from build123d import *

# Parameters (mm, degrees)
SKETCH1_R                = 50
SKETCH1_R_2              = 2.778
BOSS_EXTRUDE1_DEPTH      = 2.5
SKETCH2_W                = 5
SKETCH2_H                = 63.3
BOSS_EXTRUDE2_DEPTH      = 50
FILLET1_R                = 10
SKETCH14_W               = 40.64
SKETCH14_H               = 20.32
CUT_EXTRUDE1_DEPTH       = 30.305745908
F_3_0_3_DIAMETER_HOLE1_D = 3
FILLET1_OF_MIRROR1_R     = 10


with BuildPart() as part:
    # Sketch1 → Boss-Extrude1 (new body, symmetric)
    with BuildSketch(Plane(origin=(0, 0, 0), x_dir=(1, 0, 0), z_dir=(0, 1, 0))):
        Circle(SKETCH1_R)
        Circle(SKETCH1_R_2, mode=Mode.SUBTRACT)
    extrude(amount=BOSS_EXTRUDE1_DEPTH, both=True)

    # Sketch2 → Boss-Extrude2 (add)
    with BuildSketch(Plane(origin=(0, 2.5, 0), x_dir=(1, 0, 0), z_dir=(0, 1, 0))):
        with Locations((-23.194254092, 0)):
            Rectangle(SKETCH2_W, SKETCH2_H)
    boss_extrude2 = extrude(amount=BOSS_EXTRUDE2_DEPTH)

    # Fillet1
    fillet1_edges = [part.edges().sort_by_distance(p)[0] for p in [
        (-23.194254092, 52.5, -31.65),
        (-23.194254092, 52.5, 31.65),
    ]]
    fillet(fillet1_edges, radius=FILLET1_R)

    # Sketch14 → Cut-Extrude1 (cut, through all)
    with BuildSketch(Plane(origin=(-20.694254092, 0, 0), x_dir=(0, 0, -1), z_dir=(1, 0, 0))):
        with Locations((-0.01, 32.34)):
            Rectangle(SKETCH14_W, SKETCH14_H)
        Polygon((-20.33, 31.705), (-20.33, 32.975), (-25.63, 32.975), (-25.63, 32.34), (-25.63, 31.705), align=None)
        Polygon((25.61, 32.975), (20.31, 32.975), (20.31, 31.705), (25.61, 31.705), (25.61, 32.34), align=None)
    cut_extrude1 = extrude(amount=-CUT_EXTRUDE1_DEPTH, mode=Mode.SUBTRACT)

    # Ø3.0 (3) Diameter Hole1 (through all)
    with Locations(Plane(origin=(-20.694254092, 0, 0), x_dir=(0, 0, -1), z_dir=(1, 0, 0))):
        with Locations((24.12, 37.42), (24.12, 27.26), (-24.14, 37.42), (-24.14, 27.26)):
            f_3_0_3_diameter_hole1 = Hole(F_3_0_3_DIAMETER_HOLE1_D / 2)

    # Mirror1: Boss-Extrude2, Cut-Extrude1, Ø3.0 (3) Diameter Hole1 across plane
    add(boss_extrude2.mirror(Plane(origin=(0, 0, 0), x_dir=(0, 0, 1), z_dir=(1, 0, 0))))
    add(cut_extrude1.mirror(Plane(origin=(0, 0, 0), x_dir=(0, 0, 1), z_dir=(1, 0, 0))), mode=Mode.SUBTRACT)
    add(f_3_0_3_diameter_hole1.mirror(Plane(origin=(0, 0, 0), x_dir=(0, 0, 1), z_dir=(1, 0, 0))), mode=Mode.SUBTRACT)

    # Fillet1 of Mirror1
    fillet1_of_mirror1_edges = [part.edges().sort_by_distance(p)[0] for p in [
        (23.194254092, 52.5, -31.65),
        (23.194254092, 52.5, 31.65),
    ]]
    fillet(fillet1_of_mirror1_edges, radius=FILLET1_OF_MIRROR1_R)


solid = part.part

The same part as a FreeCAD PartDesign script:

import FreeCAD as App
import Part
import Sketcher

V = App.Vector
Q = App.Units.Quantity


def edges_at(feature, points):
    """Names of the edges that pass closest to the given points."""
    edges = feature.Shape.Edges
    near = lambda p: min(range(len(edges)), key=lambda i: edges[i].distToShape(Part.Vertex(*p))[0])
    return sorted({f"Edge{near(p) + 1}" for p in points})

doc = App.newDocument("Part")
body = doc.addObject("PartDesign::Body", "Body")

# Sketch on XZ plane
sketch1 = body.newObject("Sketcher::SketchObject", "Sketch")
sketch1.AttachmentSupport = (doc.getObject("XZ_Plane"), [""])
sketch1.MapMode = "FlatFace"
sketch1.addGeometry(Part.Circle(V(0, 0, 0), V(0, 0, 1), 50), False)
sketch1.addGeometry(Part.Circle(V(0, 0, 0), V(0, 0, 1), 2.8), False)
sketch1.addConstraint(Sketcher.Constraint("Coincident", 0, 3, -1, 1))
sketch1.addConstraint(Sketcher.Constraint("Coincident", 1, 3, -1, 1))
sketch1.addConstraint(Sketcher.Constraint("Diameter", 0, Q("100 mm")))
sketch1.addConstraint(Sketcher.Constraint("Diameter", 1, Q("5.556 mm")))
pad1 = body.newObject("PartDesign::Pad", "Pad")
pad1.Profile = sketch1
pad1.Length = 5
pad1.Midplane = True

# Sketch on XZ plane
sketch2 = body.newObject("Sketcher::SketchObject", "Sketch001")
sketch2.AttachmentSupport = (doc.getObject("XZ_Plane"), [""])
sketch2.MapMode = "FlatFace"
sketch2.AttachmentOffset = App.Placement(V(0, 0, -2.5), App.Rotation())
sketch2.addGeometry(Part.LineSegment(V(-26, -32, 0), V(-26, 32, 0)), False)
sketch2.addGeometry(Part.LineSegment(V(-26, 32, 0), V(-21, 32, 0)), False)
sketch2.addGeometry(Part.LineSegment(V(-21, 32, 0), V(-21, -32, 0)), False)
sketch2.addGeometry(Part.LineSegment(V(-21, -32, 0), V(-26, -32, 0)), False)
sketch2.addConstraint(Sketcher.Constraint("Coincident", 0, 2, 1, 1))
sketch2.addConstraint(Sketcher.Constraint("Coincident", 1, 2, 2, 1))
sketch2.addConstraint(Sketcher.Constraint("Coincident", 2, 2, 3, 1))
sketch2.addConstraint(Sketcher.Constraint("Coincident", 3, 2, 0, 1))
sketch2.addConstraint(Sketcher.Constraint("Vertical", 0))
sketch2.addConstraint(Sketcher.Constraint("Horizontal", 1))
sketch2.addConstraint(Sketcher.Constraint("Vertical", 2))
sketch2.addConstraint(Sketcher.Constraint("Horizontal", 3))
sketch2.addConstraint(Sketcher.Constraint("DistanceX", 1, 1, 1, 2, Q("5 mm")))
sketch2.addConstraint(Sketcher.Constraint("DistanceY", 0, 1, 0, 2, Q("63.3 mm")))
sketch2.addConstraint(Sketcher.Constraint("DistanceY", -1, 1, 0, 2, Q("31.65 mm")))
sketch2.addConstraint(Sketcher.Constraint("DistanceX", 0, 2, -1, 1, Q("25.694254 mm")))
pad2 = body.newObject("PartDesign::Pad", "Pad001")
pad2.Profile = sketch2
pad2.Length = 50
pad2.Reversed = True
doc.recompute()

fillet = body.newObject("PartDesign::Fillet", "Fillet")
fillet.Base = (pad2, edges_at(pad2, [(-23.194, 52.5, -31.65), (-23.194, 52.5, 31.65)]))
fillet.Radius = 10

# Sketch on YZ plane
sketch3 = body.newObject("Sketcher::SketchObject", "Sketch002")
sketch3.AttachmentSupport = (doc.getObject("YZ_Plane"), [""])
sketch3.MapMode = "FlatFace"
sketch3.AttachmentOffset = App.Placement(V(0, 0, -20.694254), App.Rotation())
sketch3.addGeometry(Part.LineSegment(V(31.7, 20.3, 0), V(22.2, 20.3, 0)), False)
sketch3.addGeometry(Part.LineSegment(V(22.2, 20.3, 0), V(22.2, -20.3, 0)), False)
sketch3.addGeometry(Part.LineSegment(V(22.2, -20.3, 0), V(31.7, -20.3, 0)), False)
sketch3.addGeometry(Part.LineSegment(V(31.7, -20.3, 0), V(31.7, -25.6, 0)), False)
sketch3.addGeometry(Part.LineSegment(V(31.7, -25.6, 0), V(33, -25.6, 0)), False)
sketch3.addGeometry(Part.LineSegment(V(33, -25.6, 0), V(33, -20.3, 0)), False)
sketch3.addGeometry(Part.LineSegment(V(33, -20.3, 0), V(42.5, -20.3, 0)), False)
sketch3.addGeometry(Part.LineSegment(V(42.5, -20.3, 0), V(42.5, 20.3, 0)), False)
sketch3.addGeometry(Part.LineSegment(V(42.5, 20.3, 0), V(33, 20.3, 0)), False)
sketch3.addGeometry(Part.LineSegment(V(33, 20.3, 0), V(33, 25.6, 0)), False)
sketch3.addGeometry(Part.LineSegment(V(33, 25.6, 0), V(31.7, 25.6, 0)), False)
sketch3.addGeometry(Part.LineSegment(V(31.7, 25.6, 0), V(31.7, 20.3, 0)), False)
sketch3.addConstraint(Sketcher.Constraint("Coincident", 0, 2, 1, 1))
sketch3.addConstraint(Sketcher.Constraint("Coincident", 1, 2, 2, 1))
sketch3.addConstraint(Sketcher.Constraint("Coincident", 2, 2, 3, 1))
sketch3.addConstraint(Sketcher.Constraint("Coincident", 3, 2, 4, 1))
sketch3.addConstraint(Sketcher.Constraint("Coincident", 4, 2, 5, 1))
sketch3.addConstraint(Sketcher.Constraint("Coincident", 5, 2, 6, 1))
sketch3.addConstraint(Sketcher.Constraint("Coincident", 6, 2, 7, 1))
sketch3.addConstraint(Sketcher.Constraint("Coincident", 7, 2, 8, 1))
sketch3.addConstraint(Sketcher.Constraint("Coincident", 8, 2, 9, 1))
sketch3.addConstraint(Sketcher.Constraint("Coincident", 9, 2, 10, 1))
sketch3.addConstraint(Sketcher.Constraint("Coincident", 10, 2, 11, 1))
sketch3.addConstraint(Sketcher.Constraint("Coincident", 11, 2, 0, 1))
sketch3.addConstraint(Sketcher.Constraint("Horizontal", 0))
sketch3.addConstraint(Sketcher.Constraint("Vertical", 1))
sketch3.addConstraint(Sketcher.Constraint("Horizontal", 2))
sketch3.addConstraint(Sketcher.Constraint("Vertical", 3))
sketch3.addConstraint(Sketcher.Constraint("Horizontal", 4))
sketch3.addConstraint(Sketcher.Constraint("Vertical", 5))
sketch3.addConstraint(Sketcher.Constraint("Horizontal", 6))
sketch3.addConstraint(Sketcher.Constraint("Vertical", 7))
sketch3.addConstraint(Sketcher.Constraint("Horizontal", 8))
sketch3.addConstraint(Sketcher.Constraint("Vertical", 9))
sketch3.addConstraint(Sketcher.Constraint("Horizontal", 10))
sketch3.addConstraint(Sketcher.Constraint("Vertical", 11))
sketch3.addConstraint(Sketcher.Constraint("Horizontal", 2, 2, 5, 2))
sketch3.addConstraint(Sketcher.Constraint("Horizontal", 0, 2, 7, 2))
sketch3.addConstraint(Sketcher.Constraint("Vertical", 5, 2, 8, 2))
sketch3.addConstraint(Sketcher.Constraint("Vertical", 3, 2, 10, 2))
sketch3.addConstraint(Sketcher.Constraint("Equal", 2, 6))
sketch3.addConstraint(Sketcher.Constraint("Equal", 5, 9))
sketch3.addConstraint(Sketcher.Constraint("DistanceY", 3, 2, 3, 1, Q("5.3 mm")))
sketch3.addConstraint(Sketcher.Constraint("DistanceX", 4, 1, 4, 2, Q("1.27 mm")))
sketch3.addConstraint(Sketcher.Constraint("DistanceY", 1, 2, 1, 1, Q("40.64 mm")))
sketch3.addConstraint(Sketcher.Constraint("DistanceX", -1, 1, 6, 2, Q("42.5 mm")))
sketch3.addConstraint(Sketcher.Constraint("DistanceX", 0, 2, 0, 1, Q("9.525 mm")))
sketch3.addConstraint(Sketcher.Constraint("DistanceY", -1, 1, 0, 2, Q("20.33 mm")))
pocket1 = body.newObject("PartDesign::Pocket", "Pocket")
pocket1.Profile = sketch3
pocket1.Type = "ThroughAll"

# Sketch on YZ plane
sketch4 = body.newObject("Sketcher::SketchObject", "Sketch003")
sketch4.AttachmentSupport = (doc.getObject("YZ_Plane"), [""])
sketch4.MapMode = "FlatFace"
sketch4.AttachmentOffset = App.Placement(V(0, 0, -20.694254), App.Rotation())
sketch4.addGeometry(Part.Circle(V(37.4, -24.1, 0), V(0, 0, 1), 1.5), False)
sketch4.addGeometry(Part.Circle(V(27.3, -24.1, 0), V(0, 0, 1), 1.5), False)
sketch4.addGeometry(Part.Circle(V(37.4, 24.1, 0), V(0, 0, 1), 1.5), False)
sketch4.addGeometry(Part.Circle(V(27.3, 24.1, 0), V(0, 0, 1), 1.5), False)
sketch4.addConstraint(Sketcher.Constraint("Equal", 0, 1))
sketch4.addConstraint(Sketcher.Constraint("Equal", 1, 2))
sketch4.addConstraint(Sketcher.Constraint("Equal", 2, 3))
sketch4.addConstraint(Sketcher.Constraint("Horizontal", 0, 3, 1, 3))
sketch4.addConstraint(Sketcher.Constraint("Horizontal", 2, 3, 3, 3))
sketch4.addConstraint(Sketcher.Constraint("Vertical", 0, 3, 2, 3))
sketch4.addConstraint(Sketcher.Constraint("Vertical", 1, 3, 3, 3))
sketch4.addConstraint(Sketcher.Constraint("Diameter", 0, Q("3 mm")))
sketch4.addConstraint(Sketcher.Constraint("DistanceX", -1, 1, 0, 3, Q("37.42 mm")))
sketch4.addConstraint(Sketcher.Constraint("DistanceY", 0, 3, -1, 1, Q("24.12 mm")))
sketch4.addConstraint(Sketcher.Constraint("DistanceX", -1, 1, 1, 3, Q("27.26 mm")))
sketch4.addConstraint(Sketcher.Constraint("DistanceY", -1, 1, 2, 3, Q("24.14 mm")))
doc.recompute()
hole = body.newObject("PartDesign::Hole", "Hole")
hole.Profile = sketch4
hole.ThreadType = "None"
hole.Diameter = 3
hole.DepthType = "ThroughAll"
doc.recompute()

mirrored = body.newObject("PartDesign::Mirrored", "Mirrored")
mirrored.Originals = [pad2, pocket1, hole]
mirrored.MirrorPlane = (doc.getObject("YZ_Plane"), [""])
body.Tip = mirrored
doc.recompute()

fillet2 = body.newObject("PartDesign::Fillet", "Fillet001")
fillet2.Base = (mirrored, edges_at(mirrored, [(23.194, 52.5, -31.65), (23.194, 52.5, 31.65)]))
fillet2.Radius = 10

doc.recompute()
